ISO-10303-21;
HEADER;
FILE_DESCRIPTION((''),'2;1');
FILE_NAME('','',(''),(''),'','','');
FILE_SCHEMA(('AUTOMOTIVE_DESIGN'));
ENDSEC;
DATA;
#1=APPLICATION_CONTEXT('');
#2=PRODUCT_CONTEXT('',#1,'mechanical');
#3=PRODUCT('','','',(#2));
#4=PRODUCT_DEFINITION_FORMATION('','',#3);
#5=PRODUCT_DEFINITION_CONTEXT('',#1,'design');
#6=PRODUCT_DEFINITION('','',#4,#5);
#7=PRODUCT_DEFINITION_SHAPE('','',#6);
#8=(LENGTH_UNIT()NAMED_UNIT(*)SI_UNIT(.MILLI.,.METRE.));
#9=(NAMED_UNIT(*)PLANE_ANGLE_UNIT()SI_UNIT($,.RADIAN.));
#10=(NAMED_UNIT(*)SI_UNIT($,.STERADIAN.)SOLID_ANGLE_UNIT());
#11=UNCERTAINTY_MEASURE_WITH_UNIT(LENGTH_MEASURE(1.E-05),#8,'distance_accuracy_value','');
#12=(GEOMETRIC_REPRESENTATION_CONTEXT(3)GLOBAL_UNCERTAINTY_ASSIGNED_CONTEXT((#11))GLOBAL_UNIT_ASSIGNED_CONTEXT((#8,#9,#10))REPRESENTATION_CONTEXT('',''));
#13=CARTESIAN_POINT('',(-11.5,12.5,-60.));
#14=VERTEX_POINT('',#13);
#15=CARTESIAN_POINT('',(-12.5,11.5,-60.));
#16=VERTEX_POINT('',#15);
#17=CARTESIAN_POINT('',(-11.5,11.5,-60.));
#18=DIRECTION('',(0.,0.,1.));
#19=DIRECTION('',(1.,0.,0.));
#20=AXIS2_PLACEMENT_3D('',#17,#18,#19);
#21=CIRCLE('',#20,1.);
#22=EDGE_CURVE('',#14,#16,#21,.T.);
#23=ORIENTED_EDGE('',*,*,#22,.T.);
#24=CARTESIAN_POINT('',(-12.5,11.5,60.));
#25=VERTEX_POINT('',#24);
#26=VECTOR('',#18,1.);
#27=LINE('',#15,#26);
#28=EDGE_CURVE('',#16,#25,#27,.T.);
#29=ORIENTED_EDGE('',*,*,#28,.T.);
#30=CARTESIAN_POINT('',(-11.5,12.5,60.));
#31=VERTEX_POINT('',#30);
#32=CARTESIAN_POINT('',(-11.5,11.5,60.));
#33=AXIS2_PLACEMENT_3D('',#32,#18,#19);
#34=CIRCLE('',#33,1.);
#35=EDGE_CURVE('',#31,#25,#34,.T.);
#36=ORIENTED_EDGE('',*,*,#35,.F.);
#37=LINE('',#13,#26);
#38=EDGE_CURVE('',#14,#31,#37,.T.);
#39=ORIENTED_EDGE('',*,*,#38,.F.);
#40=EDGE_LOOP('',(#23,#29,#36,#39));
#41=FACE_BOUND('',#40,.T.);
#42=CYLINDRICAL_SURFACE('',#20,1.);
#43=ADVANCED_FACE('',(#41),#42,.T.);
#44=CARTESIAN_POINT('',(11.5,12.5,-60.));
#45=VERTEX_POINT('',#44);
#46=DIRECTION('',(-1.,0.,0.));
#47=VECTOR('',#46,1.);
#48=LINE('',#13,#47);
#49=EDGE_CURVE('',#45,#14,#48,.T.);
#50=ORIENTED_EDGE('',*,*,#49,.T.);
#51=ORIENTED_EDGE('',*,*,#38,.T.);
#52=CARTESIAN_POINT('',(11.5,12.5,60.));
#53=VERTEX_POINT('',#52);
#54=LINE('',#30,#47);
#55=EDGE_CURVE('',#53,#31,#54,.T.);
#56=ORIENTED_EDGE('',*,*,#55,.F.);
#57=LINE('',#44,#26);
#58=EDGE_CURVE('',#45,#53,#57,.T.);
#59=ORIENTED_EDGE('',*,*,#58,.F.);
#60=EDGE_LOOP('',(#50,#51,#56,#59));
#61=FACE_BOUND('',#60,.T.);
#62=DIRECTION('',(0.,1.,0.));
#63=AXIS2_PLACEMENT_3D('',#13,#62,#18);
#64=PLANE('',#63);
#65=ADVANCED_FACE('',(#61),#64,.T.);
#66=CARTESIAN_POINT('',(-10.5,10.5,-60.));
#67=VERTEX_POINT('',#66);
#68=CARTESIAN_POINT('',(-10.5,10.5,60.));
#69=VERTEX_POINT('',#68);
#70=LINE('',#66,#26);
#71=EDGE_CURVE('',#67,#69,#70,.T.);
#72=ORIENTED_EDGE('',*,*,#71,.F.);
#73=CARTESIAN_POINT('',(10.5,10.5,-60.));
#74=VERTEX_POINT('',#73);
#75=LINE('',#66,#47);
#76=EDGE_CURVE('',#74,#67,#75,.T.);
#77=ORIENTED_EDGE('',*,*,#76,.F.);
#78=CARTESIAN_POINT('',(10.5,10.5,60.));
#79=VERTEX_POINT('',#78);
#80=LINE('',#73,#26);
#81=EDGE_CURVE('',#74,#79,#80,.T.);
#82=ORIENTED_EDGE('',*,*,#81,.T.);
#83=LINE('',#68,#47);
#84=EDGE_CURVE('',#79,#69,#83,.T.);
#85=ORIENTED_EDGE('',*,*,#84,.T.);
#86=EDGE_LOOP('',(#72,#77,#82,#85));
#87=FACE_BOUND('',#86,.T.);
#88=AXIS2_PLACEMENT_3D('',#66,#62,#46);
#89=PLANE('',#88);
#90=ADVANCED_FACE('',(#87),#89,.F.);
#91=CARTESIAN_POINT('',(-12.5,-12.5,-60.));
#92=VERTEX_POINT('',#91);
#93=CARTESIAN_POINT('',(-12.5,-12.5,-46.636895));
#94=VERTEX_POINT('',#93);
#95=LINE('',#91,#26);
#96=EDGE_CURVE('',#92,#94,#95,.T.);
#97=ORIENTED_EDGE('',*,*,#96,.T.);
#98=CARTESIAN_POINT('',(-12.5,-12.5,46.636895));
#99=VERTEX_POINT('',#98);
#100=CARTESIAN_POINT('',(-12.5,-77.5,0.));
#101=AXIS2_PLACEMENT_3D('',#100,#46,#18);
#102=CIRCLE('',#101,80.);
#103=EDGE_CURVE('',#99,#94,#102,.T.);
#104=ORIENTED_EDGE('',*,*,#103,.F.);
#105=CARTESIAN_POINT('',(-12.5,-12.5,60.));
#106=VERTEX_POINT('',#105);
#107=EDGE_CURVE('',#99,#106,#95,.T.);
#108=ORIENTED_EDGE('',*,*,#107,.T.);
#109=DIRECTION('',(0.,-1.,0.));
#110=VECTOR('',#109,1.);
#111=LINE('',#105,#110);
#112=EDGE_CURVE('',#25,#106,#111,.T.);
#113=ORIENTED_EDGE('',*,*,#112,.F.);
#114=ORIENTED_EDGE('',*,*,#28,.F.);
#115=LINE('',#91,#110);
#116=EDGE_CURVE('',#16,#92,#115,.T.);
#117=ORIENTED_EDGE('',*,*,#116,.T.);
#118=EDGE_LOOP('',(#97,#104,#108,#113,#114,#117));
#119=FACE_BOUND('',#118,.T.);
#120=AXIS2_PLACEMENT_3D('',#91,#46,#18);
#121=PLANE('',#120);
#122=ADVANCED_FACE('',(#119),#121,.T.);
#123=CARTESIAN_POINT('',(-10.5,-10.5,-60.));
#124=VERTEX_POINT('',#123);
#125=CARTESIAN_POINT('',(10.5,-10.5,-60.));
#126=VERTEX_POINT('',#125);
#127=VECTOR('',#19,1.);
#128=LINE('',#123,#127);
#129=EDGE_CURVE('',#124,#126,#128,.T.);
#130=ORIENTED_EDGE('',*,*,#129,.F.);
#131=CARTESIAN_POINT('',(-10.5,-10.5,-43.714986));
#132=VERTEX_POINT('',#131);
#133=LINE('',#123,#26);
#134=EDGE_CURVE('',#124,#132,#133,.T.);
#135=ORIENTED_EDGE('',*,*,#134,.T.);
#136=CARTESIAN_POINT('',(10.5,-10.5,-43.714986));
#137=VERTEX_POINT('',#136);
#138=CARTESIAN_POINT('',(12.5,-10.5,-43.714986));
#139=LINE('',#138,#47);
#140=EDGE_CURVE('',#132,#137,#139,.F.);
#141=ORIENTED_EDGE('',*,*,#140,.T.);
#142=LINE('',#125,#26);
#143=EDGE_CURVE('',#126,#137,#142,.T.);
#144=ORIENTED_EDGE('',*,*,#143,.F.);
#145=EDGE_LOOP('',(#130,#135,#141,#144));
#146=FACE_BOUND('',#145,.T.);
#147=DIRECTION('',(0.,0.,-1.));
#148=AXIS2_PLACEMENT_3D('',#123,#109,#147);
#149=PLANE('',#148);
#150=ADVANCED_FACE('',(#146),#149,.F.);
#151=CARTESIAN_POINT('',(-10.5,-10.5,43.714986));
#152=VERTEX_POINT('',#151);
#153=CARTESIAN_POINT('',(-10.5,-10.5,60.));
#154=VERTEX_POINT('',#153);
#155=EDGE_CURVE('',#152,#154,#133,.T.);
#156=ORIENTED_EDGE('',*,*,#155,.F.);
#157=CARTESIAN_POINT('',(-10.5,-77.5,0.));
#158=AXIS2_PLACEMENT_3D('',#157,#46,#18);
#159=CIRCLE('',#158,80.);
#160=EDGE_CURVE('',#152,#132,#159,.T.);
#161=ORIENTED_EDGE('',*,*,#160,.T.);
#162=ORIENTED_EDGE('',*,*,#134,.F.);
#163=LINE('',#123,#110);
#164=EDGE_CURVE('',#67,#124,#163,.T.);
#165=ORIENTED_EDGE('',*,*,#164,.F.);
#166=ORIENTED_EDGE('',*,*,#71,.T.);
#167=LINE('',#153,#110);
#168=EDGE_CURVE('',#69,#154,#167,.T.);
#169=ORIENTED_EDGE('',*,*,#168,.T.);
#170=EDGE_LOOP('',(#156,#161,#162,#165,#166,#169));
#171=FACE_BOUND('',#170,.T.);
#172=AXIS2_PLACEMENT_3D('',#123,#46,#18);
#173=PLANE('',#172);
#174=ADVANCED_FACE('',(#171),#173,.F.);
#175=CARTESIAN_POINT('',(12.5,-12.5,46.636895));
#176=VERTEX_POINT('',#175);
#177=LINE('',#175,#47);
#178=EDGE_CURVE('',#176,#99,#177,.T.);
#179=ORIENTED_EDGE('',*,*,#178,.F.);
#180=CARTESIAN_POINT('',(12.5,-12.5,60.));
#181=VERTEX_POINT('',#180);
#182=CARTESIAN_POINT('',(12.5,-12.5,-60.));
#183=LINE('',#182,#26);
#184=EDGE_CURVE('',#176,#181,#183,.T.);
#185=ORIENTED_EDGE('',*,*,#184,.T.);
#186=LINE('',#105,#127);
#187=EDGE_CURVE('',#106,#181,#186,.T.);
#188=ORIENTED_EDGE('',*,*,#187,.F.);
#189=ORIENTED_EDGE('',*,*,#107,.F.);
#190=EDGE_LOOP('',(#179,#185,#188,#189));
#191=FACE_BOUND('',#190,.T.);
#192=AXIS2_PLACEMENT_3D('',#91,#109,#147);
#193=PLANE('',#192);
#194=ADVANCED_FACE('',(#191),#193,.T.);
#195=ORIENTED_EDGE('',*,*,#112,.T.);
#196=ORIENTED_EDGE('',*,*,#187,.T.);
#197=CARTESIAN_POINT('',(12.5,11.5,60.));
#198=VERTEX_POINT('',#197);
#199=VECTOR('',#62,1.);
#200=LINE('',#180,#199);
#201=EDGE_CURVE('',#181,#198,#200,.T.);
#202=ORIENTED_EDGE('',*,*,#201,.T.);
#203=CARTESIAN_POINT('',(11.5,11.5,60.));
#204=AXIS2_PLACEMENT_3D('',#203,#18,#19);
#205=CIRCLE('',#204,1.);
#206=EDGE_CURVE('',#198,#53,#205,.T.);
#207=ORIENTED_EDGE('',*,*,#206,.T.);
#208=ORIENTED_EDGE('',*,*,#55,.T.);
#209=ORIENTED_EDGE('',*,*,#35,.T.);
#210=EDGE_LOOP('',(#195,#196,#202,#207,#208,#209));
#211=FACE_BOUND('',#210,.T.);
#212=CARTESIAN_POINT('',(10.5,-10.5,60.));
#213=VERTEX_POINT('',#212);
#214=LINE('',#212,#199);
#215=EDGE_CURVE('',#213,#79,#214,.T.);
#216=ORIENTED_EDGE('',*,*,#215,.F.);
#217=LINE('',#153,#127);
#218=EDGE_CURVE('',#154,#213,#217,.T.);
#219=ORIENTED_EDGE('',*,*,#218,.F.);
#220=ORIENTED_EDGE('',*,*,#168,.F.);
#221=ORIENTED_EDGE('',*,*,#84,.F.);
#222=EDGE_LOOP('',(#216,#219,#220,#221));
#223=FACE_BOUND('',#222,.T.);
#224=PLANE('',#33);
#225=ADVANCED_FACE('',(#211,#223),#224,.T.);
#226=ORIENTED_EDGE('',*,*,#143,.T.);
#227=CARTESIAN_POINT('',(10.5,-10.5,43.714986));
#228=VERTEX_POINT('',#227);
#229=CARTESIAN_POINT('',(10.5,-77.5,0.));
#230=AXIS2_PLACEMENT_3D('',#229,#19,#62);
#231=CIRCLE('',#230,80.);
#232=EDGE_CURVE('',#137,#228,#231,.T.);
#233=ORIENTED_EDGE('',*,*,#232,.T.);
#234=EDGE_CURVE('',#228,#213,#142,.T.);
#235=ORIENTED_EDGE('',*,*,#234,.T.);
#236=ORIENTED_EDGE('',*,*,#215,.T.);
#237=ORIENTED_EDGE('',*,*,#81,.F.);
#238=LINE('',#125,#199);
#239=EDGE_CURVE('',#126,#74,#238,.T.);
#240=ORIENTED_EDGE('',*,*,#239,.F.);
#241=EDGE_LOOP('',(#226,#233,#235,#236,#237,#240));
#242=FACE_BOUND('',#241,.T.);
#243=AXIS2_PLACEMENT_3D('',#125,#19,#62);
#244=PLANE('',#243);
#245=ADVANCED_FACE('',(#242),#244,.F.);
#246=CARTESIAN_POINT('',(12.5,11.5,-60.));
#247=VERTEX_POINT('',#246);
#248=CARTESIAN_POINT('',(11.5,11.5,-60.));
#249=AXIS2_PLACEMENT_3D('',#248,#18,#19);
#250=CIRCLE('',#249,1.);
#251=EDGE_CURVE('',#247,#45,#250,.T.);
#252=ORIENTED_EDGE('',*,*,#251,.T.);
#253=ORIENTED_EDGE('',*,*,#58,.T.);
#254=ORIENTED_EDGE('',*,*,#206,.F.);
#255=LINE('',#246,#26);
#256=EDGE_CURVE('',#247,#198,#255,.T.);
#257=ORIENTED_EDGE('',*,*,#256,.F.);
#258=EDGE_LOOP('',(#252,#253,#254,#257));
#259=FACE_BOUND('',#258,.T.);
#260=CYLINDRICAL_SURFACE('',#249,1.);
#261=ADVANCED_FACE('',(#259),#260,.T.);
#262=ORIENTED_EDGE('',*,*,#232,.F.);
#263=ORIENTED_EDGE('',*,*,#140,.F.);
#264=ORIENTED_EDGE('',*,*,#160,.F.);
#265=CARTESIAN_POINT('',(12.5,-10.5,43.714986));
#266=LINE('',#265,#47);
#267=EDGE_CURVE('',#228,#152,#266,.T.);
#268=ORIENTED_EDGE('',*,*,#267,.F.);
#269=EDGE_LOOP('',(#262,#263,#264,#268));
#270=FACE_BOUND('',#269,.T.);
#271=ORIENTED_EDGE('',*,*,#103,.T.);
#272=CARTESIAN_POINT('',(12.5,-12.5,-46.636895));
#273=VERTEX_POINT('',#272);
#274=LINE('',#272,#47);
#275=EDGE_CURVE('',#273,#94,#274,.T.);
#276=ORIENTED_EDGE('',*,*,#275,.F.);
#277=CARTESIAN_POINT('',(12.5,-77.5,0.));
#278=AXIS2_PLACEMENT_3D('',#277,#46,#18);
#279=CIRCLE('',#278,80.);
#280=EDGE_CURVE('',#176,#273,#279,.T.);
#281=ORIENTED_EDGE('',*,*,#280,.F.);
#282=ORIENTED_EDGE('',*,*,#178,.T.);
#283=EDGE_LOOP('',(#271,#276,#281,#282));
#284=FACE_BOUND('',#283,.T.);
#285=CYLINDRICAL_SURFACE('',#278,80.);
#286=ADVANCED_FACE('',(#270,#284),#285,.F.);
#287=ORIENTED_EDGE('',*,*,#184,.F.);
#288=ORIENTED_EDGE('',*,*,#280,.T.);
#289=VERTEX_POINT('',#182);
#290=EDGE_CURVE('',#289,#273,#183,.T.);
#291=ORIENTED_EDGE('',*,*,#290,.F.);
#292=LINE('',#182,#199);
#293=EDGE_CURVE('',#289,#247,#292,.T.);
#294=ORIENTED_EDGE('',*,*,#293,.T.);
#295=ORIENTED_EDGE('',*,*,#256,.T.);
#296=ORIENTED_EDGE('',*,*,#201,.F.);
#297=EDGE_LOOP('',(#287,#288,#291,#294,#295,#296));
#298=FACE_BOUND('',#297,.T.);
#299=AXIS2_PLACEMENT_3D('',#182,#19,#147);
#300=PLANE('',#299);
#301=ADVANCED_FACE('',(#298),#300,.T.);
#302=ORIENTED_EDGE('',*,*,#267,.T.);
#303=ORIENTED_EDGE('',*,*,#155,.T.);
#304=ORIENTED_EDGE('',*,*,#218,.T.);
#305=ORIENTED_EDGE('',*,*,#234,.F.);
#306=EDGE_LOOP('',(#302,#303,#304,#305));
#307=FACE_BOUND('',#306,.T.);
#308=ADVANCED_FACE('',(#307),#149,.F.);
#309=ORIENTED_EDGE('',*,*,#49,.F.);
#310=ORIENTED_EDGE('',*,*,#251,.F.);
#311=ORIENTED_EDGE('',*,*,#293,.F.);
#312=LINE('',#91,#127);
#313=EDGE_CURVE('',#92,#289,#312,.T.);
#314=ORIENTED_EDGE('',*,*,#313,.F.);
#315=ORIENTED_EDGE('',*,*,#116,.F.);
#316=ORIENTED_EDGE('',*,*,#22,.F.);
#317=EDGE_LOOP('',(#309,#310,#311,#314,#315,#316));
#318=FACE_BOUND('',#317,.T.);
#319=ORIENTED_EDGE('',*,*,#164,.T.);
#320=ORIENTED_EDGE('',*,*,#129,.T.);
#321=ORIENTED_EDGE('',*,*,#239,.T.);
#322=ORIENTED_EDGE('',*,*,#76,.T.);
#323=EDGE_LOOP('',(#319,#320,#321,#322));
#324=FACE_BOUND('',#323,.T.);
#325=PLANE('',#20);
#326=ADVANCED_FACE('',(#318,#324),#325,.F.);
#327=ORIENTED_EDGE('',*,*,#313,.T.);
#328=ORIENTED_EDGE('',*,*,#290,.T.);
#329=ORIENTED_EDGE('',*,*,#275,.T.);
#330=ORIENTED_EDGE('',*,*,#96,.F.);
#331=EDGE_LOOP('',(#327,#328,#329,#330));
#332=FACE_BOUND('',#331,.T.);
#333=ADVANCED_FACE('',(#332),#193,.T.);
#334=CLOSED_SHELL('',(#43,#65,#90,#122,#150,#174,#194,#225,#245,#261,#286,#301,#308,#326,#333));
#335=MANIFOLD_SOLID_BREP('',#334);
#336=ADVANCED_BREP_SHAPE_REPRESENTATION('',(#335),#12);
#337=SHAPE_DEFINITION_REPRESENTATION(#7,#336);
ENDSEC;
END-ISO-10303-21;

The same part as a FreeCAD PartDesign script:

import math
import FreeCAD as App
import Part
import Sketcher


def add_polygon(sketch, points):
    """Adds a closed chain of lines whose ends are joined by coincident constraints."""
    first, n = sketch.GeometryCount, len(points)
    for a, b in zip(points, points[1:] + points[:1]):
        sketch.addGeometry(Part.LineSegment(App.Vector(*a, 0), App.Vector(*b, 0)), False)
    for i in range(n):
        sketch.addConstraint(Sketcher.Constraint("Coincident", first + i, 2, first + (i + 1) % n, 1))

doc = App.newDocument("Part")
body = doc.addObject("PartDesign::Body", "Body")

sketch1 = body.newObject("Sketcher::SketchObject", "Sketch")
sketch1.AttachmentSupport = (doc.getObject("XY_Plane"), [""])
sketch1.MapMode = "FlatFace"
sketch1.addGeometry(Part.LineSegment(App.Vector(-12.5, -12.5, 0), App.Vector(12.5, -12.5, 0)), False)
sketch1.addGeometry(Part.LineSegment(App.Vector(12.5, -12.5, 0), App.Vector(12.5, 11.5, 0)), False)
sketch1.addGeometry(Part.ArcOfCircle(Part.Circle(App.Vector(11.5, 11.5, 0), App.Vector(0, 0, 1), 1), math.radians(0), math.radians(90)), False)
sketch1.addGeometry(Part.LineSegment(App.Vector(11.5, 12.5, 0), App.Vector(-11.5, 12.5, 0)), False)
sketch1.addGeometry(Part.ArcOfCircle(Part.Circle(App.Vector(-11.5, 11.5, 0), App.Vector(0, 0, 1), 1), math.radians(90), math.radians(180)), False)
sketch1.addGeometry(Part.LineSegment(App.Vector(-12.5, 11.5, 0), App.Vector(-12.5, -12.5, 0)), False)
add_polygon(sketch1, [(10.5, -10.5), (-10.5, -10.5), (-10.5, 10.5), (10.5, 10.5)])
sketch1.addConstraint(Sketcher.Constraint("Coincident", 0, 2, 1, 1))
sketch1.addConstraint(Sketcher.Constraint("Tangent", 1, 2, 2, 1))
sketch1.addConstraint(Sketcher.Constraint("Tangent", 2, 2, 3, 1))
sketch1.addConstraint(Sketcher.Constraint("Tangent", 3, 2, 4, 1))
sketch1.addConstraint(Sketcher.Constraint("Tangent", 4, 2, 5, 1))
sketch1.addConstraint(Sketcher.Constraint("Coincident", 5, 2, 0, 1))
sketch1.addConstraint(Sketcher.Constraint("Horizontal", 0))
sketch1.addConstraint(Sketcher.Constraint("Vertical", 1))
sketch1.addConstraint(Sketcher.Constraint("Horizontal", 3))
sketch1.addConstraint(Sketcher.Constraint("Vertical", 5))
sketch1.addConstraint(Sketcher.Constraint("Horizontal", 6))
sketch1.addConstraint(Sketcher.Constraint("Vertical", 7))
sketch1.addConstraint(Sketcher.Constraint("Horizontal", 8))
sketch1.addConstraint(Sketcher.Constraint("Vertical", 9))
sketch1.addConstraint(Sketcher.Constraint("Equal", 2, 4))
sketch1.addConstraint(Sketcher.Constraint("Symmetric", 6, 2, 8, 2, -1, 1))
sketch1.addConstraint(Sketcher.Constraint("Equal", 8, 7))
sketch1.addConstraint(Sketcher.Constraint("Radius", 2, 1.0))
sketch1.addConstraint(Sketcher.Constraint("DistanceX", 0, 1, 0, 2, 25.0))
sketch1.addConstraint(Sketcher.Constraint("DistanceX", 6, 2, 6, 1, 21.0))
sketch1.addConstraint(Sketcher.Constraint("DistanceY", 1, 1, 1, 2, 24.0))
sketch1.addConstraint(Sketcher.Constraint("DistanceX", 5, 2, 6, 2, 2.0))
sketch1.addConstraint(Sketcher.Constraint("DistanceY", 5, 2, 6, 2, 2.0))
pad1 = body.newObject("PartDesign::Pad", "Pad")
pad1.Profile = sketch1
pad1.Type = "TwoLengths"
pad1.Length = 60
pad1.Length2 = 60

sketch2 = body.newObject("Sketcher::SketchObject", "Sketch001")
sketch2.AttachmentSupport = (doc.getObject("YZ_Plane"), [""])
sketch2.MapMode = "FlatFace"
sketch2.AttachmentOffset = App.Placement(App.Vector(0, 0, 12.5), App.Rotation())
sketch2.addGeometry(Part.LineSegment(App.Vector(-12.5, 46.636895, 0), App.Vector(-146.030996, 232.745226, 0)), False)
sketch2.addGeometry(Part.LineSegment(App.Vector(-146.030996, 232.745226, 0), App.Vector(-604.143811, 232.745226, 0)), False)
sketch2.addGeometry(Part.LineSegment(App.Vector(-604.143811, 232.745226, 0), App.Vector(-604.143811, -232.745226, 0)), False)
sketch2.addGeometry(Part.LineSegment(App.Vector(-604.143811, -232.745226, 0), App.Vector(-146.030996, -232.745226, 0)), False)
sketch2.addGeometry(Part.LineSegment(App.Vector(-146.030996, -232.745226, 0), App.Vector(-12.5, -46.636895, 0)), False)
sketch2.addGeometry(Part.ArcOfCircle(Part.Circle(App.Vector(-77.5, 0, 0), App.Vector(0, 0, 1), 80), math.radians(-35.659088), math.radians(35.659088)), False)
sketch2.addConstraint(Sketcher.Constraint("Coincident", 0, 2, 1, 1))
sketch2.addConstraint(Sketcher.Constraint("Coincident", 1, 2, 2, 1))
sketch2.addConstraint(Sketcher.Constraint("Coincident", 2, 2, 3, 1))
sketch2.addConstraint(Sketcher.Constraint("Coincident", 3, 2, 4, 1))
sketch2.addConstraint(Sketcher.Constraint("Tangent", 4, 2, 5, 1))
sketch2.addConstraint(Sketcher.Constraint("Tangent", 5, 2, 0, 1))
sketch2.addConstraint(Sketcher.Constraint("Horizontal", 1))
sketch2.addConstraint(Sketcher.Constraint("Vertical", 2))
sketch2.addConstraint(Sketcher.Constraint("Horizontal", 3))
sketch2.addConstraint(Sketcher.Constraint("Symmetric", 0, 2, 3, 2, -1))
sketch2.addConstraint(Sketcher.Constraint("PointOnObject", 5, 3, -1))
sketch2.addConstraint(Sketcher.Constraint("Radius", 5, 80.0))
sketch2.addConstraint(Sketcher.Constraint("DistanceX", 5, 3, 4, 2, 65.0))
sketch2.addConstraint(Sketcher.Constraint("DistanceX", 5, 3, -1, 1, 77.5))
sketch2.addConstraint(Sketcher.Constraint("DistanceX", 1, 2, 1, 1, 458.112815))
sketch2.addConstraint(Sketcher.Constraint("DistanceY", 2, 2, 2, 1, 465.490453))
pocket1 = body.newObject("PartDesign::Pocket", "Pocket")
pocket1.Profile = sketch2
pocket1.Type = "ThroughAll"

doc.recompute()
